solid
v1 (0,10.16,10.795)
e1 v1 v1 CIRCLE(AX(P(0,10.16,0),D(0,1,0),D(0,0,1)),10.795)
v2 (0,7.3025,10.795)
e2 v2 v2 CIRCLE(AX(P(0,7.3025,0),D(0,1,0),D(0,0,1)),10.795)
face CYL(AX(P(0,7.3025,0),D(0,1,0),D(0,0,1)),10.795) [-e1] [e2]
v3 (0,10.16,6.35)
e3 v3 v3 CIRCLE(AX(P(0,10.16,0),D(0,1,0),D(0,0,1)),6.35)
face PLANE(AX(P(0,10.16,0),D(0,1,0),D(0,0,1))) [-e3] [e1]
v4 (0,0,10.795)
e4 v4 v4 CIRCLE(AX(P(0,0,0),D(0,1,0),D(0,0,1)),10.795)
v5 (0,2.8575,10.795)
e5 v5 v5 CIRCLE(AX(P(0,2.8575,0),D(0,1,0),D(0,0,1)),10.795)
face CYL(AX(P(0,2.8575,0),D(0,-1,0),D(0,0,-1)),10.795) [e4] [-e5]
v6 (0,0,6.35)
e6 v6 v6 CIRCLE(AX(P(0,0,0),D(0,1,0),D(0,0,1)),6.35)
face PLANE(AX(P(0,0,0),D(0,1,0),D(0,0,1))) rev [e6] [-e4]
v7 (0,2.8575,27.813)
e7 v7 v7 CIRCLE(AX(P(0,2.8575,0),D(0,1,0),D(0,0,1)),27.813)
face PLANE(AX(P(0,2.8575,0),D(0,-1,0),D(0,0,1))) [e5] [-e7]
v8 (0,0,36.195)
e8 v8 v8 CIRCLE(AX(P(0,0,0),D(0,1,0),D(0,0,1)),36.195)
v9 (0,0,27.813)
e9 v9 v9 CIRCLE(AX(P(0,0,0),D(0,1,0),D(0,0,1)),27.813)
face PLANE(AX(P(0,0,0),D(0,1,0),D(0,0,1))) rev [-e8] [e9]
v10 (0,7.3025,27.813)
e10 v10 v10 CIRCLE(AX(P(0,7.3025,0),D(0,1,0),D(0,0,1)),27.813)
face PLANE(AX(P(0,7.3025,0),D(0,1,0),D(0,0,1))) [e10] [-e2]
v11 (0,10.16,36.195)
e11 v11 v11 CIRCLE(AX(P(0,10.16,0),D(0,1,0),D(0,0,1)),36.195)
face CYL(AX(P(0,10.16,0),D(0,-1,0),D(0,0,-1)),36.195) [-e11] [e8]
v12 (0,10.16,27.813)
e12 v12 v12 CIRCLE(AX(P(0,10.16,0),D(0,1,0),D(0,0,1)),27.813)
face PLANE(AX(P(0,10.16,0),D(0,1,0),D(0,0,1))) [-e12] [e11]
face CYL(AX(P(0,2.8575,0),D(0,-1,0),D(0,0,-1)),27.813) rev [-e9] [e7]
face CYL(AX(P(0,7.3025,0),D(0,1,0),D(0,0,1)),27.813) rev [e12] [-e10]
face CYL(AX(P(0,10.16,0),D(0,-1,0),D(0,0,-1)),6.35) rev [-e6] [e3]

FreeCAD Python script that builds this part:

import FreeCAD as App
import Part
import Sketcher
Q = App.Units.Quantity

doc = App.newDocument("Part")
body = doc.addObject("PartDesign::Body", "Body")

sketch1 = body.newObject("Sketcher::SketchObject", "Sketch")
sketch1.AttachmentSupport = (doc.getObject("XZ_Plane"), [""])
sketch1.MapMode = "FlatFace"
sketch1.addGeometry(Part.Circle(App.Vector(0, 0, 0), App.Vector(0, 0, 1), 36), False)
sketch1.addGeometry(Part.Circle(App.Vector(0, 0, 0), App.Vector(0, 0, 1), 6), False)
sketch1.addConstraint(Sketcher.Constraint("Coincident", 0, 3, -1, 1))
sketch1.addConstraint(Sketcher.Constraint("Coincident", 1, 3, -1, 1))
sketch1.addConstraint(Sketcher.Constraint("Diameter", 1, Q("0.5 in")))
sketch1.addConstraint(Sketcher.Constraint("Diameter", 0, Q("2.85 in")))
pad1 = body.newObject("PartDesign::Pad", "Pad")
pad1.Profile = sketch1
pad1.Length = Q("0.4 in")
pad1.Reversed = True

sketch2 = body.newObject("Sketcher::SketchObject", "Sketch001")
sketch2.AttachmentSupport = (doc.getObject("XZ_Plane"), [""])
sketch2.MapMode = "FlatFace"
sketch2.AttachmentOffset = App.Placement(App.Vector(0, 0, -0.4 * 25.4), App.Rotation())
sketch2.addGeometry(Part.Circle(App.Vector(0, 0, 0), App.Vector(0, 0, 1), 28), False)
sketch2.addGeometry(Part.Circle(App.Vector(0, 0, 0), App.Vector(0, 0, 1), 11), False)
sketch2.addConstraint(Sketcher.Constraint("Coincident", 0, 3, -1, 1))
sketch2.addConstraint(Sketcher.Constraint("Coincident", 1, 3, -1, 1))
sketch2.addConstraint(Sketcher.Constraint("Diameter", 0, Q("2.19 in")))
sketch2.addConstraint(Sketcher.Constraint("Diameter", 1, Q("0.85 in")))
pocket1 = body.newObject("PartDesign::Pocket", "Pocket")
pocket1.Profile = sketch2
pocket1.Length = Q("0.1125 in")
pocket1.Reversed = True
doc.recompute()

datumplane = body.newObject("PartDesign::Plane", "DatumPlane")
datumplane.AttachmentSupport = (doc.getObject("XZ_Plane"), [""])
datumplane.MapMode = "FlatFace"
datumplane.AttachmentOffset = App.Placement(App.Vector(0, 0, -0.2 * 25.4), App.Rotation())
mirrored = body.newObject("PartDesign::Mirrored", "Mirrored")
mirrored.Originals = [pocket1]
mirrored.MirrorPlane = (datumplane, [""])
body.Tip = mirrored

doc.recompute()
